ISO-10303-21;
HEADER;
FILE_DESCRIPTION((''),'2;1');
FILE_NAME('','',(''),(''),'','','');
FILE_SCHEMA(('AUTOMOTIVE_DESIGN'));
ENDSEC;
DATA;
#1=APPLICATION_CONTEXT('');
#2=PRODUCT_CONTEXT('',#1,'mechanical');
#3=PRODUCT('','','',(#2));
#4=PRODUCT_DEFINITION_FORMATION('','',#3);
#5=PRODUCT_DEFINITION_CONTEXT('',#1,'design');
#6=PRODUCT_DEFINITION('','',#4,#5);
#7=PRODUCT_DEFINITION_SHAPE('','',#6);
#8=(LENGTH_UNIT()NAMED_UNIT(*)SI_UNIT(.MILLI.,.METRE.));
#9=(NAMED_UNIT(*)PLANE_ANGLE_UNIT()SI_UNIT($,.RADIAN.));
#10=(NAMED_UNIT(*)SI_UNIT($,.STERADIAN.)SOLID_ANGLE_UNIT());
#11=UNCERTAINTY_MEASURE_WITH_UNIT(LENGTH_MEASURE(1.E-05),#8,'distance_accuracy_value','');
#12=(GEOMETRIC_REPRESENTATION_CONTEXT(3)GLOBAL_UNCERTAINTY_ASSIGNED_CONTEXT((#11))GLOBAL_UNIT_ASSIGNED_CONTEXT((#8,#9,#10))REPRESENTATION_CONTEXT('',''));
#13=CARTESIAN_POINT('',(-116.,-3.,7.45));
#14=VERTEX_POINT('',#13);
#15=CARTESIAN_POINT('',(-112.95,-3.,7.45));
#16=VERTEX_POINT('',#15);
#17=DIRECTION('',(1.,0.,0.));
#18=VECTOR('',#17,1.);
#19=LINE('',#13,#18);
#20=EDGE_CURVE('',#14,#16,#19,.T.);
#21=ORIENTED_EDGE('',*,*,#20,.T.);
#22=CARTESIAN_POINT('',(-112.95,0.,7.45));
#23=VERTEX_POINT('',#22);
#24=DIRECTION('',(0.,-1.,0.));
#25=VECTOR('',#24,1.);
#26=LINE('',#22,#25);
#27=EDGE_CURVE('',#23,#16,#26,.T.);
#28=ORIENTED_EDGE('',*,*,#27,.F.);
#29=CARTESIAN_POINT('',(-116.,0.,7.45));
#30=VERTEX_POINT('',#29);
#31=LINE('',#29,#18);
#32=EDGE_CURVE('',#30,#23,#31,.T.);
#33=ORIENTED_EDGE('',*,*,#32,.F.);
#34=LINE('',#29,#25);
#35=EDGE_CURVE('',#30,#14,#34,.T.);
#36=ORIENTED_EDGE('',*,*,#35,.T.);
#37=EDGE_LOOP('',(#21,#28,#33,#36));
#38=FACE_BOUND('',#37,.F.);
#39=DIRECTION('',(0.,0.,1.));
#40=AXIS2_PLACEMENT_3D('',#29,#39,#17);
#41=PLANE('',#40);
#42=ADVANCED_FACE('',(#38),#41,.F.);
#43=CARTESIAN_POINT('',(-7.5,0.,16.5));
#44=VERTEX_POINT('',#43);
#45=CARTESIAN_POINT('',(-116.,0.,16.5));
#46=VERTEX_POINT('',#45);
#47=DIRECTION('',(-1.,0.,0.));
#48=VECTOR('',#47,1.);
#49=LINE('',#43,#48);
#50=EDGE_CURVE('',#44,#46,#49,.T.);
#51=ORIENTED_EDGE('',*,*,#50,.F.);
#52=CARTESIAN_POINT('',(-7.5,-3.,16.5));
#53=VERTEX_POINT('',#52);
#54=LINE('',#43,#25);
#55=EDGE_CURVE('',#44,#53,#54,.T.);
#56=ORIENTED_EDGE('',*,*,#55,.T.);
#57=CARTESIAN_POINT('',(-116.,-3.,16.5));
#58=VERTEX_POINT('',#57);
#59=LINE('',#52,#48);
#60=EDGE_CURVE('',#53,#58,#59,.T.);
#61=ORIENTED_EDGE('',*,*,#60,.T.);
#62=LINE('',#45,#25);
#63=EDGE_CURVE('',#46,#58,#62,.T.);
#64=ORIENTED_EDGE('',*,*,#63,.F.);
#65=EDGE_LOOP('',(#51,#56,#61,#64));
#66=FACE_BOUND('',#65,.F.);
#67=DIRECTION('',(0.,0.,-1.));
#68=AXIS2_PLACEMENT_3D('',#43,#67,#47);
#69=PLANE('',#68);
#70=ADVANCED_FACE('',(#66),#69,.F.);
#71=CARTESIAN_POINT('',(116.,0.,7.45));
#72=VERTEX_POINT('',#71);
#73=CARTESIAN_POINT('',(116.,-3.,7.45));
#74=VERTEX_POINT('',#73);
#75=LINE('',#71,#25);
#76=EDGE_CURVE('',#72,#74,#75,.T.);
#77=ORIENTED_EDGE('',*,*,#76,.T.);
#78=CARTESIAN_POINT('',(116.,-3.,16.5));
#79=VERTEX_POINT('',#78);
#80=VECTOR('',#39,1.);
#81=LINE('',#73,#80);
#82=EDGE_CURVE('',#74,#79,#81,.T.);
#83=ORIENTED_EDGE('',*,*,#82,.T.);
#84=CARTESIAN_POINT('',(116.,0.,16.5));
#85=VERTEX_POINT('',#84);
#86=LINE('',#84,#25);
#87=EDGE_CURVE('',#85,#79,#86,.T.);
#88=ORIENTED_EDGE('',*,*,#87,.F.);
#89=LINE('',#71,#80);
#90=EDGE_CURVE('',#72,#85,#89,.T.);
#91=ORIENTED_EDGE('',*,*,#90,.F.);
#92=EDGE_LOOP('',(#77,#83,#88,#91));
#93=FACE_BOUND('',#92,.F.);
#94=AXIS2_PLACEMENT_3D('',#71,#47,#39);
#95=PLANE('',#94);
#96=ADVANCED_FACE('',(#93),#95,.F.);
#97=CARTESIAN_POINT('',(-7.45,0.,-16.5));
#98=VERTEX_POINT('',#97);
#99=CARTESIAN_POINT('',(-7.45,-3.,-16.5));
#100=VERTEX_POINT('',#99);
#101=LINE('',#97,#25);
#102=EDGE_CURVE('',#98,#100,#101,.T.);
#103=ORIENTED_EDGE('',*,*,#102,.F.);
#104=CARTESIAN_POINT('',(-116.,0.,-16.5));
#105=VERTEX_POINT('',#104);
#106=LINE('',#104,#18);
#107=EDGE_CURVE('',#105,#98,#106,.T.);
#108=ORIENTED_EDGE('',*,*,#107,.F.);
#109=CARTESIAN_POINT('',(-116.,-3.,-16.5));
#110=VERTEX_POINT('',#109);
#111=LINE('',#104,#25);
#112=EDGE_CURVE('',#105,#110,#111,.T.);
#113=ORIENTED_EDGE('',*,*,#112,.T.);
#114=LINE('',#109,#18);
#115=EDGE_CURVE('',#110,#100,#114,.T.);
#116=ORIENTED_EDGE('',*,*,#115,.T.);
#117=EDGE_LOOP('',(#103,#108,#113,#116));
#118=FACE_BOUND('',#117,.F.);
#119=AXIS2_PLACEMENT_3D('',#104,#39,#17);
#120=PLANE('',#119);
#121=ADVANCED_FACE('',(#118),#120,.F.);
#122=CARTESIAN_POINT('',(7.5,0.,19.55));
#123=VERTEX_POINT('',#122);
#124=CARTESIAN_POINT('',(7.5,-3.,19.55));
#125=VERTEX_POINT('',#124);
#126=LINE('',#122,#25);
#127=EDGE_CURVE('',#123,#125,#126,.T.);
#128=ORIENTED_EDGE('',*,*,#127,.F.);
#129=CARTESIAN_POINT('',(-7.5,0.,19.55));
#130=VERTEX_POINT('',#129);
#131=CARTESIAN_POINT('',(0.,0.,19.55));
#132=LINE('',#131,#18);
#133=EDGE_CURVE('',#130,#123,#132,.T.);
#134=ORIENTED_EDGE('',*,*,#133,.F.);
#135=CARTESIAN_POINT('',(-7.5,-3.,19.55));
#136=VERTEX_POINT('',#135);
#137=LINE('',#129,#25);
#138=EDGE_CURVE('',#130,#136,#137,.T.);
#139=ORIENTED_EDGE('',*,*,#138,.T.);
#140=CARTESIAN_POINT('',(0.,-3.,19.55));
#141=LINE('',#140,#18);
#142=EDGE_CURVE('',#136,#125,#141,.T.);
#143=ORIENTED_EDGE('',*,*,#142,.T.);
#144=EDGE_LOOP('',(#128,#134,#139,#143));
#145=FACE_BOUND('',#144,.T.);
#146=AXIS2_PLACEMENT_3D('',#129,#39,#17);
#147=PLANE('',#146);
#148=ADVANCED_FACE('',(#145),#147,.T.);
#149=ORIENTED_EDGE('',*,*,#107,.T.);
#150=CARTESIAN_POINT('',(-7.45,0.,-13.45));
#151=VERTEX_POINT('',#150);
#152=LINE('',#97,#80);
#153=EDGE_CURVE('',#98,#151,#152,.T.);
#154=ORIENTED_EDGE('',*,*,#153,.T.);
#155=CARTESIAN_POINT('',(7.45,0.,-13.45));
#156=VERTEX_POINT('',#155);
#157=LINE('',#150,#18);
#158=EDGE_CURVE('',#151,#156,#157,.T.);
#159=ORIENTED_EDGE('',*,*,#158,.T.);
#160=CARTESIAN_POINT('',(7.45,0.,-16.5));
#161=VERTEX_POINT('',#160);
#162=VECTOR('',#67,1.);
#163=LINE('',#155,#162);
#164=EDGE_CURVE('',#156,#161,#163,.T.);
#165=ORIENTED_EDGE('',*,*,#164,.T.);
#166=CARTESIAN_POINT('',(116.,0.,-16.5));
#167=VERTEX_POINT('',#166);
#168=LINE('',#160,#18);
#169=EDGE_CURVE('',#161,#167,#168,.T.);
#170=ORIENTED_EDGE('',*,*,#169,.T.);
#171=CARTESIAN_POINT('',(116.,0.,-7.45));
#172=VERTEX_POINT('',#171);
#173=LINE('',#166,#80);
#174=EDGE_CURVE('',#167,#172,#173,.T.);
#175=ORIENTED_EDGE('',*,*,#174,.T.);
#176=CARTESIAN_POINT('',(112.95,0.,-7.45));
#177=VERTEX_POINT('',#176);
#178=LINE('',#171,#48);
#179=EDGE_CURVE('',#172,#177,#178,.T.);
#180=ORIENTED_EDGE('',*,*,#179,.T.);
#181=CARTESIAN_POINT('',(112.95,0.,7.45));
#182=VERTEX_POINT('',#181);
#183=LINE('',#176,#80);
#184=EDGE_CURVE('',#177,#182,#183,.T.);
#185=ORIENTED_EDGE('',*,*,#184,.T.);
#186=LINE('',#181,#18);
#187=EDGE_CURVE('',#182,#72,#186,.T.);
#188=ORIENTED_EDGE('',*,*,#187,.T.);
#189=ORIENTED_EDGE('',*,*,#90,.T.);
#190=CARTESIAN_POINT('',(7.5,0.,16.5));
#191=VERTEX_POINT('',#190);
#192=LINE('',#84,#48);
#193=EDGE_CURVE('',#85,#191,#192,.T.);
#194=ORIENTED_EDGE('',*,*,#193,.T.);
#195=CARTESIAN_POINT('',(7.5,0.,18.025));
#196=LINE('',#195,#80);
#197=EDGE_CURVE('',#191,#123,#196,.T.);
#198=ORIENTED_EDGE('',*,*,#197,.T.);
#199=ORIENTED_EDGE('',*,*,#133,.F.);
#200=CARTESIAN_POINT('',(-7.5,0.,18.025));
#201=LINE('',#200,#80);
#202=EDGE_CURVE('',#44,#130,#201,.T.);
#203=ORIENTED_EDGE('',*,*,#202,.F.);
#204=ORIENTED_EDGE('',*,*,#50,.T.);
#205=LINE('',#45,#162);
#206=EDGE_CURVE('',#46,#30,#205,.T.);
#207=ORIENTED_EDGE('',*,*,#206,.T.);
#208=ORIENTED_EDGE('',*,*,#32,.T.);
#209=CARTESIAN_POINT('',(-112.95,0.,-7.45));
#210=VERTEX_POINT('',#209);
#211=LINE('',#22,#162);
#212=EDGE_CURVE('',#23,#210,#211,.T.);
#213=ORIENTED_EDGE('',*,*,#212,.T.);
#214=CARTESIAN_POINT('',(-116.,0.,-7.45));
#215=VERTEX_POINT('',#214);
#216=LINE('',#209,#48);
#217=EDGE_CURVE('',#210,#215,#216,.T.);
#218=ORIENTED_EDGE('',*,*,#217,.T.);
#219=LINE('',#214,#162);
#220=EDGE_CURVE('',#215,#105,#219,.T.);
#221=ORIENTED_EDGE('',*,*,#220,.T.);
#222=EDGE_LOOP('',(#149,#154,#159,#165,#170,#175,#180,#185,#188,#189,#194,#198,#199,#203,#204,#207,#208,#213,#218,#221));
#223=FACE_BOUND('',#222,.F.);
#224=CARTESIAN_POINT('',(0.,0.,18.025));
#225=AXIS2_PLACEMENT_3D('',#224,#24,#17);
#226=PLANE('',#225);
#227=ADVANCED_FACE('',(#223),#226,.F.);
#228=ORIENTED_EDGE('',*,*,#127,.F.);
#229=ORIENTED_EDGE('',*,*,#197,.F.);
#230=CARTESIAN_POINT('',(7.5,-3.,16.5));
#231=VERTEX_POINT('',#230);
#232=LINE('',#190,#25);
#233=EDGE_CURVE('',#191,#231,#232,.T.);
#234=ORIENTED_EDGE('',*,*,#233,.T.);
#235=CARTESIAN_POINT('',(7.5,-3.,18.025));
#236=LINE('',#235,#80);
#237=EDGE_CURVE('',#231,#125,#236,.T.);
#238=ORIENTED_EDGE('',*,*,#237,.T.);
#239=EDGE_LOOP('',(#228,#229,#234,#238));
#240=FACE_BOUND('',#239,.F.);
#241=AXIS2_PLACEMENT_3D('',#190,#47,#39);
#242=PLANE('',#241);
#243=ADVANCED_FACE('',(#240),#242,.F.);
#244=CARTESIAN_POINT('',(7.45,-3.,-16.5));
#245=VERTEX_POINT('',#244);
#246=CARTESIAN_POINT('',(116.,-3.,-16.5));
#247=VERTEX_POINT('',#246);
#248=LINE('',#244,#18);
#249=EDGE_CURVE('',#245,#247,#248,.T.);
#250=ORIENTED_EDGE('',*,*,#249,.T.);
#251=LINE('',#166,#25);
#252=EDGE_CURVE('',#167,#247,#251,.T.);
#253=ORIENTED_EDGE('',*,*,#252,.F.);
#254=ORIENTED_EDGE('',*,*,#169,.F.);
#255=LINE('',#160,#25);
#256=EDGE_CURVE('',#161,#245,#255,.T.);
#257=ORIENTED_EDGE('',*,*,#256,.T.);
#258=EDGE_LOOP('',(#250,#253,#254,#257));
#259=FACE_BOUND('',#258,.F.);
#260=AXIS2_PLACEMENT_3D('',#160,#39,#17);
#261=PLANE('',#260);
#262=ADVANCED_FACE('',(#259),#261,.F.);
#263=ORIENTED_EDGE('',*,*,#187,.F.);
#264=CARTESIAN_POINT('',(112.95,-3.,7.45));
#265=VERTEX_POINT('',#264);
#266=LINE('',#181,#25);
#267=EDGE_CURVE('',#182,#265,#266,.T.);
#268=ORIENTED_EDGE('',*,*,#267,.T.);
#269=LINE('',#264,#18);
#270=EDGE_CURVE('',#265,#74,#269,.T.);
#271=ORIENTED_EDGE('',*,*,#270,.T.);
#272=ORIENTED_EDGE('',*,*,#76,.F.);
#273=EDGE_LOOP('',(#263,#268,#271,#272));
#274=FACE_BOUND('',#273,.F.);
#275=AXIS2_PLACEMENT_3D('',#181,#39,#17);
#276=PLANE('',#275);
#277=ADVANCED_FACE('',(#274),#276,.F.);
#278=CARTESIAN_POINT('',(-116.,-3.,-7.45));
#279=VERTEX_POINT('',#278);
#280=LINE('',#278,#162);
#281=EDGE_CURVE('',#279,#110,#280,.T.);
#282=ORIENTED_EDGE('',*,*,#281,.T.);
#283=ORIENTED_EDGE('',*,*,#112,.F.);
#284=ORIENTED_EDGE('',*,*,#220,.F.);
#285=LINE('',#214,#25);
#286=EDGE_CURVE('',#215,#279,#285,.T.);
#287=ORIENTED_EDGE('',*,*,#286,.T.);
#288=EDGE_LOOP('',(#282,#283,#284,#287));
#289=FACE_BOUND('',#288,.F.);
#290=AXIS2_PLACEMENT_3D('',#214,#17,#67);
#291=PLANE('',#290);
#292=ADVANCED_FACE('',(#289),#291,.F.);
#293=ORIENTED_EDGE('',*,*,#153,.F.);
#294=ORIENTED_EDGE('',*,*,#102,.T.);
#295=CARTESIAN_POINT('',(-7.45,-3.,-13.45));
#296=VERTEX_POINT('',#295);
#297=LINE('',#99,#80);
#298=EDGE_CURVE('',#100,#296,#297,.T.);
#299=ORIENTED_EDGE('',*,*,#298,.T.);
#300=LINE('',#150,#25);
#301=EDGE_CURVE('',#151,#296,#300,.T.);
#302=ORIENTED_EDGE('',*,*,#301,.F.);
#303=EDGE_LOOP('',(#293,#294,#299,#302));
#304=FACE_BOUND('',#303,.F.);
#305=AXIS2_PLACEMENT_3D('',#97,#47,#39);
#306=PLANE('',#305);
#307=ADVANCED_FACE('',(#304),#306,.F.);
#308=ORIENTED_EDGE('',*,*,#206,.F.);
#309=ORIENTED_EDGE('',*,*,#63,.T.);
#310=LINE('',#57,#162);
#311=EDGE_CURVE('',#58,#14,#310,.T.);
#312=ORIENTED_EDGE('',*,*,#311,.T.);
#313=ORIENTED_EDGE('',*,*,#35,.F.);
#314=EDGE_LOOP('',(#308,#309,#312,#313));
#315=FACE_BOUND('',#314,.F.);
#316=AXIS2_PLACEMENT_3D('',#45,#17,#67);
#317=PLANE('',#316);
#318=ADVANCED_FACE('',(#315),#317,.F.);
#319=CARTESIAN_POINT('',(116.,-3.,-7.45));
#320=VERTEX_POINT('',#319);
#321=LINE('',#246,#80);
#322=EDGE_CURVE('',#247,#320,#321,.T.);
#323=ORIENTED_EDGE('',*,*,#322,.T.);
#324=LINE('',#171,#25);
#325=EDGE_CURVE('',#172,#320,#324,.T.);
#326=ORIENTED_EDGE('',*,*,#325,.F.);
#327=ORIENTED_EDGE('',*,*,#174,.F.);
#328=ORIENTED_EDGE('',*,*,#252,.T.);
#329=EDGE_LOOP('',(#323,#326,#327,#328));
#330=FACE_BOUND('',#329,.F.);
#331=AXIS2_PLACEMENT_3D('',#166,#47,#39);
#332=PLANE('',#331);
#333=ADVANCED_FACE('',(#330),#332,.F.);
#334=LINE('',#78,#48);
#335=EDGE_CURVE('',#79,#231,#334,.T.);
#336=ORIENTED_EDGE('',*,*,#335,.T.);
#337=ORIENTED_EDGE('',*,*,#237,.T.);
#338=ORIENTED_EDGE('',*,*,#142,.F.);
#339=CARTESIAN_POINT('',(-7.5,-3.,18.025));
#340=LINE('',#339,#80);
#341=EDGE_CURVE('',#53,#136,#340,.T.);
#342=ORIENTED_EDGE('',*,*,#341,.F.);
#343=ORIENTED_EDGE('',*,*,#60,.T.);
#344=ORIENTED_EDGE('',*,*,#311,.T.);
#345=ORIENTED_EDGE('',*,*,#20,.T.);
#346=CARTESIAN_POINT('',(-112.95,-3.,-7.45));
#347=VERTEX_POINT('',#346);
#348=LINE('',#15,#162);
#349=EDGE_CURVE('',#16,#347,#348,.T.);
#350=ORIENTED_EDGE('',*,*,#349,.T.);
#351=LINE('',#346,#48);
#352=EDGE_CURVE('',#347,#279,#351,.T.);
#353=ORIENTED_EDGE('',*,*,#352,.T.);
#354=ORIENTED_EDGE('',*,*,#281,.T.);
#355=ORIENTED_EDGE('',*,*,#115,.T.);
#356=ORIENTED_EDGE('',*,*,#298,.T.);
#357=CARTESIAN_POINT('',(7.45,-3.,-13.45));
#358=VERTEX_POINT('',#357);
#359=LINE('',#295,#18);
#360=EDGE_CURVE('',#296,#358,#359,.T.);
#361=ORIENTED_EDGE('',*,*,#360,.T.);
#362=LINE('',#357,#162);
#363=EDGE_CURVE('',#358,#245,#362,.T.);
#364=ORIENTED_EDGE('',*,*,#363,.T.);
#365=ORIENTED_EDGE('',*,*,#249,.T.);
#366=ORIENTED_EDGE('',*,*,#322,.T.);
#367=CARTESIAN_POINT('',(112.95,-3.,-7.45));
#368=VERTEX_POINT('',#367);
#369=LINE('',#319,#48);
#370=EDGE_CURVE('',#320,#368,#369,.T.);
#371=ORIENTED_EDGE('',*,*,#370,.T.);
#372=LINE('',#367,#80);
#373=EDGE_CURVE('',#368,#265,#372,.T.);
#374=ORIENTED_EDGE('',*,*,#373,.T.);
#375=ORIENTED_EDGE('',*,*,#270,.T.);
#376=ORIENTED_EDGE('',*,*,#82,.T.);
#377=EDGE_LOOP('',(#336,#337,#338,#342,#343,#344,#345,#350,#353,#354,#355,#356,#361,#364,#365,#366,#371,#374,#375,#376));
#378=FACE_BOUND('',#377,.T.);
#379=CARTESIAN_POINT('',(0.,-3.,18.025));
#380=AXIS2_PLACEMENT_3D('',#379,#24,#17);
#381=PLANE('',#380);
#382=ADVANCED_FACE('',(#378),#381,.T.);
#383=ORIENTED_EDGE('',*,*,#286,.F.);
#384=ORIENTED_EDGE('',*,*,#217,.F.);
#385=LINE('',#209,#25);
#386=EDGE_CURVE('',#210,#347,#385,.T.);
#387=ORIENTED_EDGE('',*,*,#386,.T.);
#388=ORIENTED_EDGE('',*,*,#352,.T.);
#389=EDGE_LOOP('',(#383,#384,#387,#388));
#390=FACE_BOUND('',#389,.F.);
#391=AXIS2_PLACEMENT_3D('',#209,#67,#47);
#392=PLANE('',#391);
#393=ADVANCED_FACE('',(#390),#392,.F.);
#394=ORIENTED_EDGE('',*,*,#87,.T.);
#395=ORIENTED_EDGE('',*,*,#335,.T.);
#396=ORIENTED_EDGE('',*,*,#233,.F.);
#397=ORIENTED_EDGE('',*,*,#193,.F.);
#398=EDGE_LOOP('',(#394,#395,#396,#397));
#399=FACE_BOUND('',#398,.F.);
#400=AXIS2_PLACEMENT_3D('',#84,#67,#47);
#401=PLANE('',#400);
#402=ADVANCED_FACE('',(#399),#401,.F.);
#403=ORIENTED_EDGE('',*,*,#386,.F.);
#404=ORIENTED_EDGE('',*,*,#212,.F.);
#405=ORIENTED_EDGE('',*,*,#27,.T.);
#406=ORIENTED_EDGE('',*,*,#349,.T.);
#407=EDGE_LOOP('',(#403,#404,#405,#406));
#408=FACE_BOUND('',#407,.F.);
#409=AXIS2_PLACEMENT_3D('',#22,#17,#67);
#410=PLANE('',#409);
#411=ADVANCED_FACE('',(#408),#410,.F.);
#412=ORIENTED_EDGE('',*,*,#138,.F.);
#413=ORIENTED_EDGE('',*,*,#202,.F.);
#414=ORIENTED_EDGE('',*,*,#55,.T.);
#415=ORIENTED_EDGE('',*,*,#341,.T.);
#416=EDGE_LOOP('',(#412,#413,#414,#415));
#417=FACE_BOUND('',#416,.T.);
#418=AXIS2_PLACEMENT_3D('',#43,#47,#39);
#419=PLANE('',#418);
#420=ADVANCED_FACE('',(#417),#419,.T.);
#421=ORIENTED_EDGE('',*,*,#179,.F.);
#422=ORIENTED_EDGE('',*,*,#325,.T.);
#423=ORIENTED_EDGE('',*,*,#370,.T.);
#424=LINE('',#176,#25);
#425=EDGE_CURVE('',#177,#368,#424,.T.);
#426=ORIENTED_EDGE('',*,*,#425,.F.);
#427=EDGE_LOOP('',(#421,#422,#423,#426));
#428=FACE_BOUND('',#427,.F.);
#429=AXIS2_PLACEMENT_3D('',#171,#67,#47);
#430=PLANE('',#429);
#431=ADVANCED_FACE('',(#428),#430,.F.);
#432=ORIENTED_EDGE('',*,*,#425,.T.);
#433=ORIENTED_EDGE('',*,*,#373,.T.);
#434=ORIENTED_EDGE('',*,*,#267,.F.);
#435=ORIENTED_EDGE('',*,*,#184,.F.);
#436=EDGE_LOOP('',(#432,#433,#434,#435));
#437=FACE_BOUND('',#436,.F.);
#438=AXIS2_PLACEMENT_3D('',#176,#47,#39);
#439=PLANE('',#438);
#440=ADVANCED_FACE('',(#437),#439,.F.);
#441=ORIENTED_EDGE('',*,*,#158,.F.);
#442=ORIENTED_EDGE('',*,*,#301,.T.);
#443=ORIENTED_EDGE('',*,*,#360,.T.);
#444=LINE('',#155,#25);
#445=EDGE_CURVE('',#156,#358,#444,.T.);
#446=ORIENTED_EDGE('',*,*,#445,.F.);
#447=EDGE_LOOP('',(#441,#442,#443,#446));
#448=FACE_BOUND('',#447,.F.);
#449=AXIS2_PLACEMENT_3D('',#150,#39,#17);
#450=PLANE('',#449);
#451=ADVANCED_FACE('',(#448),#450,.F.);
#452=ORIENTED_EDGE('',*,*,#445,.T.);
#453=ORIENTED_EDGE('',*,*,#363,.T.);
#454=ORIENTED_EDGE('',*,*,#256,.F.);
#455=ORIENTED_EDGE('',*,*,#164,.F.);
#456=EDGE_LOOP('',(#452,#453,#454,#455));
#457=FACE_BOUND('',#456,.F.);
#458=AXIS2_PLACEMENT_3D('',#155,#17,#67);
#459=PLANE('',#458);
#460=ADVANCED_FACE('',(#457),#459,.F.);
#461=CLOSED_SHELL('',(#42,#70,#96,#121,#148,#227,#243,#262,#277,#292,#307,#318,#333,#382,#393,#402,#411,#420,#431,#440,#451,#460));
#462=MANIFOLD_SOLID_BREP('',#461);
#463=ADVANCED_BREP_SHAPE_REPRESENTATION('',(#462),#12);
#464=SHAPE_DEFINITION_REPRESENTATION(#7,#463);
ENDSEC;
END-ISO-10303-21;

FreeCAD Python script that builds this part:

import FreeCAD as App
import Part
import Sketcher

V = App.Vector
Q = App.Units.Quantity

doc = App.newDocument("Part")
body = doc.addObject("PartDesign::Body", "Body")

# Sketch on XZ plane
sketch1 = body.newObject("Sketcher::SketchObject", "Sketch")
sketch1.AttachmentSupport = (doc.getObject("XZ_Plane"), [""])
sketch1.MapMode = "FlatFace"
sketch1.addGeometry([
    Part.LineSegment(V(-7.5, 19.55, 0), V(-7.5, 16.5, 0)),  # 0
    Part.LineSegment(V(-7.5, 16.5, 0), V(-116, 16.5, 0)),  # 1
    Part.LineSegment(V(-116, 16.5, 0), V(-116, 7.45, 0)),  # 2
    Part.LineSegment(V(-116, 7.45, 0), V(-112.95, 7.45, 0)),  # 3
    Part.LineSegment(V(-112.95, 7.45, 0), V(-112.95, -7.45, 0)),  # 4
    Part.LineSegment(V(-112.95, -7.45, 0), V(-116, -7.45, 0)),  # 5
    Part.LineSegment(V(-116, -7.45, 0), V(-116, -16.5, 0)),  # 6
    Part.LineSegment(V(-116, -16.5, 0), V(-7.45, -16.5, 0)),  # 7
    Part.LineSegment(V(-7.45, -16.5, 0), V(-7.45, -13.45, 0)),  # 8
    Part.LineSegment(V(-7.45, -13.45, 0), V(7.45, -13.45, 0)),  # 9
    Part.LineSegment(V(7.45, -13.45, 0), V(7.45, -16.5, 0)),  # 10
    Part.LineSegment(V(7.45, -16.5, 0), V(116, -16.5, 0)),  # 11
    Part.LineSegment(V(116, -16.5, 0), V(116, -7.45, 0)),  # 12
    Part.LineSegment(V(116, -7.45, 0), V(112.95, -7.45, 0)),  # 13
    Part.LineSegment(V(112.95, -7.45, 0), V(112.95, 7.45, 0)),  # 14
    Part.LineSegment(V(112.95, 7.45, 0), V(116, 7.45, 0)),  # 15
    Part.LineSegment(V(116, 7.45, 0), V(116, 16.5, 0)),  # 16
    Part.LineSegment(V(116, 16.5, 0), V(7.5, 16.5, 0)),  # 17
    Part.LineSegment(V(7.5, 16.5, 0), V(7.5, 19.55, 0)),  # 18
    Part.LineSegment(V(7.5, 19.55, 0), V(-7.5, 19.55, 0)),  # 19
], False)
sketch1.addConstraint([
    Sketcher.Constraint("Coincident", 0, 2, 1, 1),
    Sketcher.Constraint("Coincident", 1, 2, 2, 1),
    Sketcher.Constraint("Coincident", 2, 2, 3, 1),
    Sketcher.Constraint("Coincident", 3, 2, 4, 1),
    Sketcher.Constraint("Coincident", 4, 2, 5, 1),
    Sketcher.Constraint("Coincident", 5, 2, 6, 1),
    Sketcher.Constraint("Coincident", 6, 2, 7, 1),
    Sketcher.Constraint("Coincident", 7, 2, 8, 1),
    Sketcher.Constraint("Coincident", 8, 2, 9, 1),
    Sketcher.Constraint("Coincident", 9, 2, 10, 1),
    Sketcher.Constraint("Coincident", 10, 2, 11, 1),
    Sketcher.Constraint("Coincident", 11, 2, 12, 1),
    Sketcher.Constraint("Coincident", 12, 2, 13, 1),
    Sketcher.Constraint("Coincident", 13, 2, 14, 1),
    Sketcher.Constraint("Coincident", 14, 2, 15, 1),
    Sketcher.Constraint("Coincident", 15, 2, 16, 1),
    Sketcher.Constraint("Coincident", 16, 2, 17, 1),
    Sketcher.Constraint("Coincident", 17, 2, 18, 1),
    Sketcher.Constraint("Coincident", 18, 2, 19, 1),
    Sketcher.Constraint("Coincident", 19, 2, 0, 1),
    Sketcher.Constraint("Vertical", 0),
    Sketcher.Constraint("Horizontal", 1),
    Sketcher.Constraint("Vertical", 2),
    Sketcher.Constraint("Horizontal", 3),
    Sketcher.Constraint("Vertical", 4),
    Sketcher.Constraint("Horizontal", 5),
    Sketcher.Constraint("Vertical", 6),
    Sketcher.Constraint("Horizontal", 7),
    Sketcher.Constraint("Vertical", 8),
    Sketcher.Constraint("Horizontal", 9),
    Sketcher.Constraint("Vertical", 10),
    Sketcher.Constraint("Horizontal", 11),
    Sketcher.Constraint("Vertical", 12),
    Sketcher.Constraint("Horizontal", 13),
    Sketcher.Constraint("Vertical", 14),
    Sketcher.Constraint("Horizontal", 15),
    Sketcher.Constraint("Vertical", 16),
    Sketcher.Constraint("Horizontal", 17),
    Sketcher.Constraint("Vertical", 18),
    Sketcher.Constraint("Horizontal", 19),
    Sketcher.Constraint("Symmetric", 1, 2, 11, 2, -1, 1),
    Sketcher.Constraint("Symmetric", 3, 2, 13, 2, -1, 1),
    Sketcher.Constraint("Symmetric", 5, 2, 15, 2, -1, 1),
    Sketcher.Constraint("Symmetric", 7, 2, 10, 2, -2),
    Sketcher.Constraint("Symmetric", 5, 2, 12, 2, -2),
    Sketcher.Constraint("Symmetric", 0, 2, 17, 2, -2),
    Sketcher.Constraint("Equal", 15, 0),
    Sketcher.Constraint("Equal", 9, 4),
    Sketcher.Constraint("Equal", 0, 8),
    Sketcher.Constraint("DistanceX", 19, 2, 19, 1, Q("15 mm")),
    Sketcher.Constraint("DistanceX", 1, 2, 1, 1, Q("108.5 mm")),
    Sketcher.Constraint("DistanceX", 9, 1, 9, 2, Q("14.9 mm")),
    Sketcher.Constraint("DistanceY", 6, 2, 1, 2, Q("33 mm")),
    Sketcher.Constraint("DistanceY", 8, 2, 4, 2, Q("6 mm")),
])
pad1 = body.newObject("PartDesign::Pad", "Pad")
pad1.Profile = sketch1
pad1.Length = 3

doc.recompute()
